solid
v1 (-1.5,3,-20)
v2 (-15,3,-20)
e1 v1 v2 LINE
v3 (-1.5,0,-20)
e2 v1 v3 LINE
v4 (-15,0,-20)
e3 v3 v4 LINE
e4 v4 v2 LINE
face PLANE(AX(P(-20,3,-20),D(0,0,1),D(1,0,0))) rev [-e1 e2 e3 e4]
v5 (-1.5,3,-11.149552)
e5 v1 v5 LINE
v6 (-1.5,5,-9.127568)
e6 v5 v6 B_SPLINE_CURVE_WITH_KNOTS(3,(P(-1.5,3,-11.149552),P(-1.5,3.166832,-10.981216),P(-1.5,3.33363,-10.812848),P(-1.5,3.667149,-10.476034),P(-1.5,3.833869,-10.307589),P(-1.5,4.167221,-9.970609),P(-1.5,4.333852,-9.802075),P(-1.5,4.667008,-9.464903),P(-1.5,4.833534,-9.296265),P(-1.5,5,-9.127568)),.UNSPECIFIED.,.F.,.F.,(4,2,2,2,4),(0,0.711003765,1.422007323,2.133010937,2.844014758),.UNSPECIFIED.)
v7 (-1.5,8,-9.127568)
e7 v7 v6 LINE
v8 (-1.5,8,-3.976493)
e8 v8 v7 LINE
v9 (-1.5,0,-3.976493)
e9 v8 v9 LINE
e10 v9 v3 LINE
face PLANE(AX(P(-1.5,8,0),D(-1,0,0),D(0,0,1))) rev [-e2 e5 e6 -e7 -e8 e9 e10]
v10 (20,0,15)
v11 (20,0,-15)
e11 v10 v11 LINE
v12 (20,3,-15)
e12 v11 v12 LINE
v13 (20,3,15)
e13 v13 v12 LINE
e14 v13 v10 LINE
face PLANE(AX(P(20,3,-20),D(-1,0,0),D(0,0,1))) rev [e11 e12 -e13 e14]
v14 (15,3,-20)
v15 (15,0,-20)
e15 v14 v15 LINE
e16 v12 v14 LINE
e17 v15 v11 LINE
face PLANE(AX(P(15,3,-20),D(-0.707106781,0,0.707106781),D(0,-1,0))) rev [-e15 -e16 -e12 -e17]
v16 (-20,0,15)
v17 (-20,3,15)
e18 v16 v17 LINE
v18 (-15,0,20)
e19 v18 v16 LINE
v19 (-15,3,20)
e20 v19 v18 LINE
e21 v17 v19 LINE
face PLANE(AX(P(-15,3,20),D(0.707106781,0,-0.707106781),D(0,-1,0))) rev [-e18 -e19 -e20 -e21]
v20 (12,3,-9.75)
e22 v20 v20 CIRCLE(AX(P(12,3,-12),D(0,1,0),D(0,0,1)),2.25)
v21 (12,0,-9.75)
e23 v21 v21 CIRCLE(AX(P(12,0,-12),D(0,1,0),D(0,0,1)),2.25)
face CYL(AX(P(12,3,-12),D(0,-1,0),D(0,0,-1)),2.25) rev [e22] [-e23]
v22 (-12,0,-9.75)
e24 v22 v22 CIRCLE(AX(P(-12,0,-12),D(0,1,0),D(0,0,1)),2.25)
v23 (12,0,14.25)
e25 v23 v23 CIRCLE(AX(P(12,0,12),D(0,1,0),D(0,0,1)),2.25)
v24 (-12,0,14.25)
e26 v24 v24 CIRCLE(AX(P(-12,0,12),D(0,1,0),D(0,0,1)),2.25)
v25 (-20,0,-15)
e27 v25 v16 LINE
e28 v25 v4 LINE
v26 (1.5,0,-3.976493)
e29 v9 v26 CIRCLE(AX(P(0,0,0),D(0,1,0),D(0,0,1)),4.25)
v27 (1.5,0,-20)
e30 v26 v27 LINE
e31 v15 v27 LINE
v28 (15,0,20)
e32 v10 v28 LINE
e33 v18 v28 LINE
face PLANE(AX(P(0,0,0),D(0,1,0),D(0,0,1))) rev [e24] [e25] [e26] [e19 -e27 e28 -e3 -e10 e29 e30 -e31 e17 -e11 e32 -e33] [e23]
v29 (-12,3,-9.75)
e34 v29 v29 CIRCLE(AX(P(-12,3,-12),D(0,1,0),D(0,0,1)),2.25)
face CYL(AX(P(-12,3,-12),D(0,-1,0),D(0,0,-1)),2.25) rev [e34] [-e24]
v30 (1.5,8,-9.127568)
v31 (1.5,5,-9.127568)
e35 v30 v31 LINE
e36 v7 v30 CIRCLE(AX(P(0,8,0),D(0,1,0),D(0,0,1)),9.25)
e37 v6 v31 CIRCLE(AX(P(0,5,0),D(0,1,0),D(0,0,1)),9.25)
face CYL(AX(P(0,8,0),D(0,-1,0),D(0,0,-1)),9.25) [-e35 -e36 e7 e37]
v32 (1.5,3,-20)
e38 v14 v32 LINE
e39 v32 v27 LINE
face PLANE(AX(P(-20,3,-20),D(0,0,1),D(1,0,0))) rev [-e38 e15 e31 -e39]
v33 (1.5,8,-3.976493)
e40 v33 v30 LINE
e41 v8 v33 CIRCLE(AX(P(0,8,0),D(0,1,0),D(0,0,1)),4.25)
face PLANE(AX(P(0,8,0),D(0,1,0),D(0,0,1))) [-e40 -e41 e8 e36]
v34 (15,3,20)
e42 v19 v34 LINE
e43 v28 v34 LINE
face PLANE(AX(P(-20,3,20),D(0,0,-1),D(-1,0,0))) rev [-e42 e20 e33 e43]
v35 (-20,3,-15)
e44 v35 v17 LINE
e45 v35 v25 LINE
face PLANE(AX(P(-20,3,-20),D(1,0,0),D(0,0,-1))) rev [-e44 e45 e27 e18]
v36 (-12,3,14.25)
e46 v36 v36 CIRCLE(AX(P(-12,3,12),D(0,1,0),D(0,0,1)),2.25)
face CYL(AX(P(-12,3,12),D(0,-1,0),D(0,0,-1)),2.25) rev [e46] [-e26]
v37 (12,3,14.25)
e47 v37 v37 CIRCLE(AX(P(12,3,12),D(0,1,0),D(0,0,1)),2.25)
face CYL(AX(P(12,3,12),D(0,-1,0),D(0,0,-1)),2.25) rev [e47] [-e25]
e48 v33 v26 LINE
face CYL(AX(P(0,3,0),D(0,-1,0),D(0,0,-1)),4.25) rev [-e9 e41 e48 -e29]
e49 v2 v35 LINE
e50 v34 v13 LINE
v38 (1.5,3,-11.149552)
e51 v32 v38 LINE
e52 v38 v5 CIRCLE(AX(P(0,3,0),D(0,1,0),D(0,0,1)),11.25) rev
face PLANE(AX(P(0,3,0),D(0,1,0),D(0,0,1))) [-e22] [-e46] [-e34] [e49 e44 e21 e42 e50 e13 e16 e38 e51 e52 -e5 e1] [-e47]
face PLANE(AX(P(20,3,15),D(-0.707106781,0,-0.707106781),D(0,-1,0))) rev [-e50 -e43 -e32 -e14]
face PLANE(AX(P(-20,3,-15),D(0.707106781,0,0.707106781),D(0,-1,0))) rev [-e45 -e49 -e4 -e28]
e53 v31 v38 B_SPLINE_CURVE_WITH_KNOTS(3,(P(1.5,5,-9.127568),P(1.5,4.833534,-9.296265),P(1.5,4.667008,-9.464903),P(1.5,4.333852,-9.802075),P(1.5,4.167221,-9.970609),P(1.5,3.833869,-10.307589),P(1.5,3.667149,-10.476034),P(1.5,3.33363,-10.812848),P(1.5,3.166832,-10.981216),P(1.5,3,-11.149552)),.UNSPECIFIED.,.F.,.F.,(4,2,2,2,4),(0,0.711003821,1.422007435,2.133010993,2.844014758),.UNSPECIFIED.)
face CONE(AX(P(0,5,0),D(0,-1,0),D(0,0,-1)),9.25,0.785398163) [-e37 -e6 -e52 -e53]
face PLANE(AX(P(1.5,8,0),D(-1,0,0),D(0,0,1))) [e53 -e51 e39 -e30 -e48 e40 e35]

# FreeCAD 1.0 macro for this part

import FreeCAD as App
import Part
import Sketcher
from FreeCAD import Vector
Q = App.Units.Quantity


def edges_at(feature, points):
    """Names of the edges that pass closest to the given points."""
    edges = feature.Shape.Edges
    near = lambda p: min(range(len(edges)), key=lambda i: edges[i].distToShape(Part.Vertex(*p))[0])
    return sorted({f"Edge{near(p) + 1}" for p in points})

doc = App.newDocument("Part")
body = doc.addObject("PartDesign::Body", "Body")

# Sketch on XZ plane
sketch1 = body.newObject("Sketcher::SketchObject", "Sketch")
sketch1.AttachmentSupport = (doc.getObject("XZ_Plane"), [""])
sketch1.MapMode = "FlatFace"
sketch1.addGeometry(Part.LineSegment(Vector(-20, -20, 0), Vector(-20, 20, 0)), False)
sketch1.addGeometry(Part.LineSegment(Vector(-20, 20, 0), Vector(20, 20, 0)), False)
sketch1.addGeometry(Part.LineSegment(Vector(20, 20, 0), Vector(20, -20, 0)), False)
sketch1.addGeometry(Part.LineSegment(Vector(20, -20, 0), Vector(-20, -20, 0)), False)
sketch1.addGeometry(Part.Circle(Vector(-12, 12, 0), Vector(0, 0, 1), 2.2), False)
sketch1.addGeometry(Part.Circle(Vector(12, 12, 0), Vector(0, 0, 1), 2.2), False)
sketch1.addGeometry(Part.Circle(Vector(-12, -12, 0), Vector(0, 0, 1), 2.2), False)
sketch1.addGeometry(Part.Circle(Vector(0, 0, 0), Vector(0, 0, 1), 4.2), False)
sketch1.addGeometry(Part.Circle(Vector(12, -12, 0), Vector(0, 0, 1), 2.2), False)
sketch1.addConstraint(Sketcher.Constraint("Coincident", 0, 2, 1, 1))
sketch1.addConstraint(Sketcher.Constraint("Coincident", 1, 2, 2, 1))
sketch1.addConstraint(Sketcher.Constraint("Coincident", 2, 2, 3, 1))
sketch1.addConstraint(Sketcher.Constraint("Coincident", 3, 2, 0, 1))
sketch1.addConstraint(Sketcher.Constraint("Vertical", 0))
sketch1.addConstraint(Sketcher.Constraint("Horizontal", 1))
sketch1.addConstraint(Sketcher.Constraint("Vertical", 2))
sketch1.addConstraint(Sketcher.Constraint("Horizontal", 3))
sketch1.addConstraint(Sketcher.Constraint("Coincident", 7, 3, -1, 1))
sketch1.addConstraint(Sketcher.Constraint("Equal", 4, 5))
sketch1.addConstraint(Sketcher.Constraint("Equal", 5, 6))
sketch1.addConstraint(Sketcher.Constraint("Equal", 6, 8))
sketch1.addConstraint(Sketcher.Constraint("Symmetric", 5, 3, 6, 3, -1, 1))
sketch1.addConstraint(Sketcher.Constraint("Symmetric", 4, 3, 8, 3, -1, 1))
sketch1.addConstraint(Sketcher.Constraint("Symmetric", 0, 2, 2, 2, -1, 1))
sketch1.addConstraint(Sketcher.Constraint("Symmetric", 4, 3, 5, 3, -2))
sketch1.addConstraint(Sketcher.Constraint("Equal", 3, 0))
sketch1.addConstraint(Sketcher.Constraint("Diameter", 4, Q("4.5 mm")))
sketch1.addConstraint(Sketcher.Constraint("Diameter", 7, Q("8.5 mm")))
sketch1.addConstraint(Sketcher.Constraint("DistanceX", 1, 1, 1, 2, Q("40 mm")))
sketch1.addConstraint(Sketcher.Constraint("DistanceX", 4, 3, -1, 1, Q("12 mm")))
sketch1.addConstraint(Sketcher.Constraint("DistanceY", -1, 1, 4, 3, Q("12 mm")))
pad1 = body.newObject("PartDesign::Pad", "Pad")
pad1.Profile = sketch1
pad1.Length = 3
pad1.Reversed = True

# Sketch on XZ plane
sketch2 = body.newObject("Sketcher::SketchObject", "Sketch001")
sketch2.AttachmentSupport = (doc.getObject("XZ_Plane"), [""])
sketch2.MapMode = "FlatFace"
sketch2.AttachmentOffset = App.Placement(Vector(0, 0, -3), App.Rotation())
sketch2.addGeometry(Part.Circle(Vector(0, 0, 0), Vector(0, 0, 1), 9.2), False)
sketch2.addGeometry(Part.Circle(Vector(0, 0, 0), Vector(0, 0, 1), 4.2), False)
sketch2.addConstraint(Sketcher.Constraint("Coincident", 0, 3, -1, 1))
sketch2.addConstraint(Sketcher.Constraint("Coincident", 1, 3, -1, 1))
sketch2.addConstraint(Sketcher.Constraint("Diameter", 0, Q("18.5 mm")))
sketch2.addConstraint(Sketcher.Constraint("Diameter", 1, Q("8.5 mm")))
pad2 = body.newObject("PartDesign::Pad", "Pad001")
pad2.Profile = sketch2
pad2.Length = 5
pad2.Reversed = True

# Sketch on XZ plane
sketch3 = body.newObject("Sketcher::SketchObject", "Sketch002")
sketch3.AttachmentSupport = (doc.getObject("XZ_Plane"), [""])
sketch3.MapMode = "FlatFace"
sketch3.AttachmentOffset = App.Placement(Vector(0, 0, -3), App.Rotation())
sketch3.addGeometry(Part.LineSegment(Vector(-1.5, -20, 0), Vector(-1.5, 0, 0)), False)
sketch3.addGeometry(Part.LineSegment(Vector(-1.5, 0, 0), Vector(1.5, 0, 0)), False)
sketch3.addGeometry(Part.LineSegment(Vector(1.5, 0, 0), Vector(1.5, -20, 0)), False)
sketch3.addGeometry(Part.LineSegment(Vector(1.5, -20, 0), Vector(-1.5, -20, 0)), False)
sketch3.addConstraint(Sketcher.Constraint("Coincident", 0, 2, 1, 1))
sketch3.addConstraint(Sketcher.Constraint("Coincident", 1, 2, 2, 1))
sketch3.addConstraint(Sketcher.Constraint("Coincident", 2, 2, 3, 1))
sketch3.addConstraint(Sketcher.Constraint("Coincident", 3, 2, 0, 1))
sketch3.addConstraint(Sketcher.Constraint("Vertical", 0))
sketch3.addConstraint(Sketcher.Constraint("Horizontal", 1))
sketch3.addConstraint(Sketcher.Constraint("Vertical", 2))
sketch3.addConstraint(Sketcher.Constraint("Horizontal", 3))
sketch3.addConstraint(Sketcher.Constraint("Symmetric", 0, 2, 1, 2, -1, 1))
sketch3.addConstraint(Sketcher.Constraint("DistanceX", 1, 1, 1, 2, Q("3 mm")))
sketch3.addConstraint(Sketcher.Constraint("DistanceY", 0, 1, 0, 2, Q("20 mm")))
pocket1 = body.newObject("PartDesign::Pocket", "Pocket")
pocket1.Profile = sketch3
pocket1.Type = "ThroughAll"
pocket1.Midplane = True
doc.recompute()

chamfer = body.newObject("PartDesign::Chamfer", "Chamfer")
chamfer.Base = (pocket1, edges_at(pocket1, [
    (20, 1.5, 20),
    (-20, 1.5, 20),
    (-20, 1.5, -20),
    (20, 1.5, -20),
]))
chamfer.Size = 5
doc.recompute()

chamfer2 = body.newObject("PartDesign::Chamfer", "Chamfer001")
chamfer2.Base = (chamfer, edges_at(chamfer, [(0, 3, 9.25)]))
chamfer2.Size = 2

doc.recompute()
